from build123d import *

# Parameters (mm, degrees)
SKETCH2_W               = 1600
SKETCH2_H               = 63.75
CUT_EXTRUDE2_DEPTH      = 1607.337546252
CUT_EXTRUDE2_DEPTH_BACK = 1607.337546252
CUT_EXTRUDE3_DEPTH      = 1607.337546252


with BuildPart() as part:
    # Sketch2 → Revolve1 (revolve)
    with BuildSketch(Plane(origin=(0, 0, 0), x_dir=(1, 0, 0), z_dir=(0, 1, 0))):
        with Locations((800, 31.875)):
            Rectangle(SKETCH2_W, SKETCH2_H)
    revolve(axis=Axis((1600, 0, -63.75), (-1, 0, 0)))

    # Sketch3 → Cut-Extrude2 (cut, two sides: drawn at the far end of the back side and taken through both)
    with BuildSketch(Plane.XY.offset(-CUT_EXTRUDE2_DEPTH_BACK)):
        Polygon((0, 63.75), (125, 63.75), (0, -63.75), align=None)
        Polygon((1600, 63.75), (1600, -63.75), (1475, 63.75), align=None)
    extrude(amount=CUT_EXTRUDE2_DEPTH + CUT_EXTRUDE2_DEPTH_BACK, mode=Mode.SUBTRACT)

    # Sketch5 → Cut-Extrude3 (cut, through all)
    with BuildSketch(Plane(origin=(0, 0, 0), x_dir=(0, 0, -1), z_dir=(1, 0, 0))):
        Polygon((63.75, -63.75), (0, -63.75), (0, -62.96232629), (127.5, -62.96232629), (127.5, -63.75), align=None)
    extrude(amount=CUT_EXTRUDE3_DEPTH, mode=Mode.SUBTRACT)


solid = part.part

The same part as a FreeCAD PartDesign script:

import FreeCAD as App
import Part
import Sketcher

V = App.Vector


def add_polygon(sketch, points):
    """Adds a closed chain of lines whose ends are joined by coincident constraints."""
    first, n = sketch.GeometryCount, len(points)
    for a, b in zip(points, points[1:] + points[:1]):
        sketch.addGeometry(Part.LineSegment(App.Vector(*a, 0), App.Vector(*b, 0)), False)
    for i in range(n):
        sketch.addConstraint(Sketcher.Constraint("Coincident", first + i, 2, first + (i + 1) % n, 1))

doc = App.newDocument("Part")
body = doc.addObject("PartDesign::Body", "Body")

# Sketch on XZ plane
sketch1 = body.newObject("Sketcher::SketchObject", "Sketch")
sketch1.AttachmentSupport = (doc.getObject("XZ_Plane"), [""])
sketch1.MapMode = "FlatFace"
add_polygon(sketch1, [(0, -63.75), (0, 0), (1600, 0), (1600, -63.75)])  # lines 0-3
sketch1.addGeometry(Part.LineSegment(V(1600, -63.75, 0), V(0, -63.75, 0)), True)  # axis
sketch1.addConstraint(Sketcher.Constraint("Vertical", 0))
sketch1.addConstraint(Sketcher.Constraint("Horizontal", 1))
sketch1.addConstraint(Sketcher.Constraint("Vertical", 2))
sketch1.addConstraint(Sketcher.Constraint("Horizontal", 3))
sketch1.addConstraint(Sketcher.Constraint("Horizontal", 4))
sketch1.addConstraint(Sketcher.Constraint("Coincident", 0, 2, -1, 1))
sketch1.addConstraint(Sketcher.Constraint("Coincident", 4, 1, 2, 2))
sketch1.addConstraint(Sketcher.Constraint("PointOnObject", 4, 2, -2))
sketch1.addConstraint(Sketcher.Constraint("DistanceX", 1, 1, 1, 2, 1600.0))
sketch1.addConstraint(Sketcher.Constraint("DistanceY", 0, 1, 0, 2, 63.75))
revolution = body.newObject("PartDesign::Revolution", "Revolution")
revolution.Profile = sketch1
revolution.ReferenceAxis = (sketch1, ["Axis0"])
revolution.Angle = 360

# Sketch on XY plane
sketch2 = body.newObject("Sketcher::SketchObject", "Sketch001")
sketch2.AttachmentSupport = (doc.getObject("XY_Plane"), [""])
sketch2.MapMode = "FlatFace"
add_polygon(sketch2, [(125, 63.75), (0, 63.75), (0, -63.75)])  # lines 0-2
add_polygon(sketch2, [(1600, -63.75), (1600, 63.75), (1475, 63.75)])  # lines 3-5
sketch2.addConstraint(Sketcher.Constraint("Horizontal", 0))
sketch2.addConstraint(Sketcher.Constraint("Vertical", 1))
sketch2.addConstraint(Sketcher.Constraint("Vertical", 3))
sketch2.addConstraint(Sketcher.Constraint("Horizontal", 4))
sketch2.addConstraint(Sketcher.Constraint("Symmetric", 0, 2, 1, 2, -1, 1))
sketch2.addConstraint(Sketcher.Constraint("Horizontal", 2, 2, 3, 2))
sketch2.addConstraint(Sketcher.Constraint("Horizontal", 1, 2, 5, 2))
sketch2.addConstraint(Sketcher.Constraint("Equal", 0, 4))
sketch2.addConstraint(Sketcher.Constraint("DistanceX", 0, 2, 0, 1, 125.0))
sketch2.addConstraint(Sketcher.Constraint("DistanceY", 1, 2, 1, 1, 127.5))
sketch2.addConstraint(Sketcher.Constraint("DistanceX", -1, 1, 3, 2, 1600.0))
pocket1 = body.newObject("PartDesign::Pocket", "Pocket")
pocket1.Profile = sketch2
pocket1.Type = "ThroughAll"
pocket1.Midplane = True

# Sketch on YZ plane
sketch3 = body.newObject("Sketcher::SketchObject", "Sketch002")
sketch3.AttachmentSupport = (doc.getObject("YZ_Plane"), [""])
sketch3.MapMode = "FlatFace"
add_polygon(sketch3, [(-63.75, 0), (-63.75, -127.5), (-62.962326, -127.5), (-62.962326, 0)])  # lines 0-3
sketch3.addConstraint(Sketcher.Constraint("Vertical", 0))
sketch3.addConstraint(Sketcher.Constraint("Horizontal", 1))
sketch3.addConstraint(Sketcher.Constraint("Vertical", 2))
sketch3.addConstraint(Sketcher.Constraint("Horizontal", 3))
sketch3.addConstraint(Sketcher.Constraint("PointOnObject", 2, 2, -1))
sketch3.addConstraint(Sketcher.Constraint("DistanceY", 0, 2, 0, 1, 127.5))
sketch3.addConstraint(Sketcher.Constraint("DistanceX", 0, 2, -1, 1, 63.75))
sketch3.addConstraint(Sketcher.Constraint("DistanceX", 1, 1, 1, 2, 0.787674))
pocket2 = body.newObject("PartDesign::Pocket", "Pocket001")
pocket2.Profile = sketch3
pocket2.Type = "ThroughAll"
pocket2.Reversed = True

doc.recompute()
